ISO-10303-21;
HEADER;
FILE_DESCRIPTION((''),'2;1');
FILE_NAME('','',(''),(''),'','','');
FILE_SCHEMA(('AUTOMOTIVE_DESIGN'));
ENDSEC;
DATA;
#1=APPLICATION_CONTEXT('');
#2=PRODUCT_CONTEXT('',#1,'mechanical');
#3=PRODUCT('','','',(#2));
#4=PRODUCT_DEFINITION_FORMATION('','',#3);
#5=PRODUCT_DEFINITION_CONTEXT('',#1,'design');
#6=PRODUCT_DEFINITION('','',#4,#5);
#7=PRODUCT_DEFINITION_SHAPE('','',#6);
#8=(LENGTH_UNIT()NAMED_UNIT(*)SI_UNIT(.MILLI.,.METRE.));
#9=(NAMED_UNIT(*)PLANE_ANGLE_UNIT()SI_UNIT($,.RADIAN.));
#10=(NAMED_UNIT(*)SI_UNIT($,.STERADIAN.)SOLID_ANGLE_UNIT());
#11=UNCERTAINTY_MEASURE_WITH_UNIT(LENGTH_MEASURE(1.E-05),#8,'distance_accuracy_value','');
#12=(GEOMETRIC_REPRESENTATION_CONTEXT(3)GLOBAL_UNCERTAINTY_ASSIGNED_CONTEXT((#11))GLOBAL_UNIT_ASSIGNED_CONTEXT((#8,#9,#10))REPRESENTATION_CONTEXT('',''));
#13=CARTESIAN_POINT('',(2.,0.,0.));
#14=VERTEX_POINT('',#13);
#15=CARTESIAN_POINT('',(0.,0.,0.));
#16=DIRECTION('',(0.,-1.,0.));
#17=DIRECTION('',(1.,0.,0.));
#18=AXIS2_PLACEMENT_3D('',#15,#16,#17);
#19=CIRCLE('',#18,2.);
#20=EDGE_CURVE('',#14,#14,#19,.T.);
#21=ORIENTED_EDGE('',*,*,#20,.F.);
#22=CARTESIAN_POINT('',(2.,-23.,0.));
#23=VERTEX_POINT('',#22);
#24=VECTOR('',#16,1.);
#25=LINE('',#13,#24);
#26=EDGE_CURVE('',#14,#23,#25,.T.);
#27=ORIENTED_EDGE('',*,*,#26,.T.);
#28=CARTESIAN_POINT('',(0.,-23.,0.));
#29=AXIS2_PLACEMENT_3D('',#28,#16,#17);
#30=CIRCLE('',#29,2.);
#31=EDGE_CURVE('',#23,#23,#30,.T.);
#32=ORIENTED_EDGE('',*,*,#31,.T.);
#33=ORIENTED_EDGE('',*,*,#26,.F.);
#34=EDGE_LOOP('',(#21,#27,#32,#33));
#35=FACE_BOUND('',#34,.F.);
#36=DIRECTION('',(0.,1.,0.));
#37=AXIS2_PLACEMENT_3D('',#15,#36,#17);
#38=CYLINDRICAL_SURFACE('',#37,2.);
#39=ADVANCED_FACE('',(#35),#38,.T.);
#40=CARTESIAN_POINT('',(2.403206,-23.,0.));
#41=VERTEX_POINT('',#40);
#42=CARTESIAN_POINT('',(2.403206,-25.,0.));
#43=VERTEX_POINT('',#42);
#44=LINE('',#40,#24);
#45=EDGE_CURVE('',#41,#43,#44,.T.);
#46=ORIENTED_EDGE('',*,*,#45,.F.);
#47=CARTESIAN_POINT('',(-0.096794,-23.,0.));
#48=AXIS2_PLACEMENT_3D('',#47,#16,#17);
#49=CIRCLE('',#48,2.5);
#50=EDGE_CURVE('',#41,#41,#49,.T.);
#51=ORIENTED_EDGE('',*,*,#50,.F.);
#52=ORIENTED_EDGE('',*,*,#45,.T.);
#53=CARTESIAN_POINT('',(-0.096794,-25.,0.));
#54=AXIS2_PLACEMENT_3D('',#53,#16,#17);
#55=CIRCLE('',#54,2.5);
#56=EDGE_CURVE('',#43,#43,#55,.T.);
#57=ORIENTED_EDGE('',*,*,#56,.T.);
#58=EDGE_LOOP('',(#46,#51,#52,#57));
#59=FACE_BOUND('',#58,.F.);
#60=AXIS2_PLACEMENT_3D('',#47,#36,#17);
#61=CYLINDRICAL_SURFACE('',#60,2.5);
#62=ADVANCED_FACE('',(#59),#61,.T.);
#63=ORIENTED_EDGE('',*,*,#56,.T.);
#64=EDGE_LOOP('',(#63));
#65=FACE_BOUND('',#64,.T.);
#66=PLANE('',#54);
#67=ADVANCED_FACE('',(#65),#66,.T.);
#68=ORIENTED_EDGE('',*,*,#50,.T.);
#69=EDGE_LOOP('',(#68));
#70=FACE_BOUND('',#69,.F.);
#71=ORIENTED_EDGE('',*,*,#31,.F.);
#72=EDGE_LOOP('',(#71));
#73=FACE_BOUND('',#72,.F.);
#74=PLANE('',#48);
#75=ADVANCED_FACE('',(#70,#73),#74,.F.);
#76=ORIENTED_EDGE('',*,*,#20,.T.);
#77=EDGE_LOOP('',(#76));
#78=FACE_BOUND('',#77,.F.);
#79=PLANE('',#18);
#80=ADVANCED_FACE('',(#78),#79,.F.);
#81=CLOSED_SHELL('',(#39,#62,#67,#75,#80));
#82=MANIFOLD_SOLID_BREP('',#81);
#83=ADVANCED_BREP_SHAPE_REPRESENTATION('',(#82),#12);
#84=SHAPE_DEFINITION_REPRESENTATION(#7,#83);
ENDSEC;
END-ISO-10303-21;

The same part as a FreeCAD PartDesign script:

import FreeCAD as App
import Part
import Sketcher

doc = App.newDocument("Part")
body = doc.addObject("PartDesign::Body", "Body")

# Sketch on XZ plane
sketch1 = body.newObject("Sketcher::SketchObject", "Sketch")
sketch1.AttachmentSupport = (doc.getObject("XZ_Plane"), [""])
sketch1.MapMode = "FlatFace"
sketch1.addGeometry(Part.Circle(App.Vector(0, 0, 0), App.Vector(0, 0, 1), 2), False)
sketch1.addConstraint([
    Sketcher.Constraint("Coincident", 0, 3, -1, 1),
    Sketcher.Constraint("Diameter", 0, 4.0),
])
pad1 = body.newObject("PartDesign::Pad", "Pad")
pad1.Profile = sketch1
pad1.Length = 23

# Sketch on XZ plane
sketch2 = body.newObject("Sketcher::SketchObject", "Sketch001")
sketch2.AttachmentSupport = (doc.getObject("XZ_Plane"), [""])
sketch2.MapMode = "FlatFace"
sketch2.AttachmentOffset = App.Placement(App.Vector(0, 0, 23), App.Rotation())
sketch2.addGeometry(Part.Circle(App.Vector(-0.1, 0, 0), App.Vector(0, 0, 1), 2.5), False)
sketch2.addConstraint([
    Sketcher.Constraint("PointOnObject", 0, 3, -1),
    Sketcher.Constraint("Diameter", 0, 5.0),
    Sketcher.Constraint("DistanceX", 0, 3, -1, 1, 0.096794),
])
pad2 = body.newObject("PartDesign::Pad", "Pad001")
pad2.Profile = sketch2
pad2.Length = 2

doc.recompute()
